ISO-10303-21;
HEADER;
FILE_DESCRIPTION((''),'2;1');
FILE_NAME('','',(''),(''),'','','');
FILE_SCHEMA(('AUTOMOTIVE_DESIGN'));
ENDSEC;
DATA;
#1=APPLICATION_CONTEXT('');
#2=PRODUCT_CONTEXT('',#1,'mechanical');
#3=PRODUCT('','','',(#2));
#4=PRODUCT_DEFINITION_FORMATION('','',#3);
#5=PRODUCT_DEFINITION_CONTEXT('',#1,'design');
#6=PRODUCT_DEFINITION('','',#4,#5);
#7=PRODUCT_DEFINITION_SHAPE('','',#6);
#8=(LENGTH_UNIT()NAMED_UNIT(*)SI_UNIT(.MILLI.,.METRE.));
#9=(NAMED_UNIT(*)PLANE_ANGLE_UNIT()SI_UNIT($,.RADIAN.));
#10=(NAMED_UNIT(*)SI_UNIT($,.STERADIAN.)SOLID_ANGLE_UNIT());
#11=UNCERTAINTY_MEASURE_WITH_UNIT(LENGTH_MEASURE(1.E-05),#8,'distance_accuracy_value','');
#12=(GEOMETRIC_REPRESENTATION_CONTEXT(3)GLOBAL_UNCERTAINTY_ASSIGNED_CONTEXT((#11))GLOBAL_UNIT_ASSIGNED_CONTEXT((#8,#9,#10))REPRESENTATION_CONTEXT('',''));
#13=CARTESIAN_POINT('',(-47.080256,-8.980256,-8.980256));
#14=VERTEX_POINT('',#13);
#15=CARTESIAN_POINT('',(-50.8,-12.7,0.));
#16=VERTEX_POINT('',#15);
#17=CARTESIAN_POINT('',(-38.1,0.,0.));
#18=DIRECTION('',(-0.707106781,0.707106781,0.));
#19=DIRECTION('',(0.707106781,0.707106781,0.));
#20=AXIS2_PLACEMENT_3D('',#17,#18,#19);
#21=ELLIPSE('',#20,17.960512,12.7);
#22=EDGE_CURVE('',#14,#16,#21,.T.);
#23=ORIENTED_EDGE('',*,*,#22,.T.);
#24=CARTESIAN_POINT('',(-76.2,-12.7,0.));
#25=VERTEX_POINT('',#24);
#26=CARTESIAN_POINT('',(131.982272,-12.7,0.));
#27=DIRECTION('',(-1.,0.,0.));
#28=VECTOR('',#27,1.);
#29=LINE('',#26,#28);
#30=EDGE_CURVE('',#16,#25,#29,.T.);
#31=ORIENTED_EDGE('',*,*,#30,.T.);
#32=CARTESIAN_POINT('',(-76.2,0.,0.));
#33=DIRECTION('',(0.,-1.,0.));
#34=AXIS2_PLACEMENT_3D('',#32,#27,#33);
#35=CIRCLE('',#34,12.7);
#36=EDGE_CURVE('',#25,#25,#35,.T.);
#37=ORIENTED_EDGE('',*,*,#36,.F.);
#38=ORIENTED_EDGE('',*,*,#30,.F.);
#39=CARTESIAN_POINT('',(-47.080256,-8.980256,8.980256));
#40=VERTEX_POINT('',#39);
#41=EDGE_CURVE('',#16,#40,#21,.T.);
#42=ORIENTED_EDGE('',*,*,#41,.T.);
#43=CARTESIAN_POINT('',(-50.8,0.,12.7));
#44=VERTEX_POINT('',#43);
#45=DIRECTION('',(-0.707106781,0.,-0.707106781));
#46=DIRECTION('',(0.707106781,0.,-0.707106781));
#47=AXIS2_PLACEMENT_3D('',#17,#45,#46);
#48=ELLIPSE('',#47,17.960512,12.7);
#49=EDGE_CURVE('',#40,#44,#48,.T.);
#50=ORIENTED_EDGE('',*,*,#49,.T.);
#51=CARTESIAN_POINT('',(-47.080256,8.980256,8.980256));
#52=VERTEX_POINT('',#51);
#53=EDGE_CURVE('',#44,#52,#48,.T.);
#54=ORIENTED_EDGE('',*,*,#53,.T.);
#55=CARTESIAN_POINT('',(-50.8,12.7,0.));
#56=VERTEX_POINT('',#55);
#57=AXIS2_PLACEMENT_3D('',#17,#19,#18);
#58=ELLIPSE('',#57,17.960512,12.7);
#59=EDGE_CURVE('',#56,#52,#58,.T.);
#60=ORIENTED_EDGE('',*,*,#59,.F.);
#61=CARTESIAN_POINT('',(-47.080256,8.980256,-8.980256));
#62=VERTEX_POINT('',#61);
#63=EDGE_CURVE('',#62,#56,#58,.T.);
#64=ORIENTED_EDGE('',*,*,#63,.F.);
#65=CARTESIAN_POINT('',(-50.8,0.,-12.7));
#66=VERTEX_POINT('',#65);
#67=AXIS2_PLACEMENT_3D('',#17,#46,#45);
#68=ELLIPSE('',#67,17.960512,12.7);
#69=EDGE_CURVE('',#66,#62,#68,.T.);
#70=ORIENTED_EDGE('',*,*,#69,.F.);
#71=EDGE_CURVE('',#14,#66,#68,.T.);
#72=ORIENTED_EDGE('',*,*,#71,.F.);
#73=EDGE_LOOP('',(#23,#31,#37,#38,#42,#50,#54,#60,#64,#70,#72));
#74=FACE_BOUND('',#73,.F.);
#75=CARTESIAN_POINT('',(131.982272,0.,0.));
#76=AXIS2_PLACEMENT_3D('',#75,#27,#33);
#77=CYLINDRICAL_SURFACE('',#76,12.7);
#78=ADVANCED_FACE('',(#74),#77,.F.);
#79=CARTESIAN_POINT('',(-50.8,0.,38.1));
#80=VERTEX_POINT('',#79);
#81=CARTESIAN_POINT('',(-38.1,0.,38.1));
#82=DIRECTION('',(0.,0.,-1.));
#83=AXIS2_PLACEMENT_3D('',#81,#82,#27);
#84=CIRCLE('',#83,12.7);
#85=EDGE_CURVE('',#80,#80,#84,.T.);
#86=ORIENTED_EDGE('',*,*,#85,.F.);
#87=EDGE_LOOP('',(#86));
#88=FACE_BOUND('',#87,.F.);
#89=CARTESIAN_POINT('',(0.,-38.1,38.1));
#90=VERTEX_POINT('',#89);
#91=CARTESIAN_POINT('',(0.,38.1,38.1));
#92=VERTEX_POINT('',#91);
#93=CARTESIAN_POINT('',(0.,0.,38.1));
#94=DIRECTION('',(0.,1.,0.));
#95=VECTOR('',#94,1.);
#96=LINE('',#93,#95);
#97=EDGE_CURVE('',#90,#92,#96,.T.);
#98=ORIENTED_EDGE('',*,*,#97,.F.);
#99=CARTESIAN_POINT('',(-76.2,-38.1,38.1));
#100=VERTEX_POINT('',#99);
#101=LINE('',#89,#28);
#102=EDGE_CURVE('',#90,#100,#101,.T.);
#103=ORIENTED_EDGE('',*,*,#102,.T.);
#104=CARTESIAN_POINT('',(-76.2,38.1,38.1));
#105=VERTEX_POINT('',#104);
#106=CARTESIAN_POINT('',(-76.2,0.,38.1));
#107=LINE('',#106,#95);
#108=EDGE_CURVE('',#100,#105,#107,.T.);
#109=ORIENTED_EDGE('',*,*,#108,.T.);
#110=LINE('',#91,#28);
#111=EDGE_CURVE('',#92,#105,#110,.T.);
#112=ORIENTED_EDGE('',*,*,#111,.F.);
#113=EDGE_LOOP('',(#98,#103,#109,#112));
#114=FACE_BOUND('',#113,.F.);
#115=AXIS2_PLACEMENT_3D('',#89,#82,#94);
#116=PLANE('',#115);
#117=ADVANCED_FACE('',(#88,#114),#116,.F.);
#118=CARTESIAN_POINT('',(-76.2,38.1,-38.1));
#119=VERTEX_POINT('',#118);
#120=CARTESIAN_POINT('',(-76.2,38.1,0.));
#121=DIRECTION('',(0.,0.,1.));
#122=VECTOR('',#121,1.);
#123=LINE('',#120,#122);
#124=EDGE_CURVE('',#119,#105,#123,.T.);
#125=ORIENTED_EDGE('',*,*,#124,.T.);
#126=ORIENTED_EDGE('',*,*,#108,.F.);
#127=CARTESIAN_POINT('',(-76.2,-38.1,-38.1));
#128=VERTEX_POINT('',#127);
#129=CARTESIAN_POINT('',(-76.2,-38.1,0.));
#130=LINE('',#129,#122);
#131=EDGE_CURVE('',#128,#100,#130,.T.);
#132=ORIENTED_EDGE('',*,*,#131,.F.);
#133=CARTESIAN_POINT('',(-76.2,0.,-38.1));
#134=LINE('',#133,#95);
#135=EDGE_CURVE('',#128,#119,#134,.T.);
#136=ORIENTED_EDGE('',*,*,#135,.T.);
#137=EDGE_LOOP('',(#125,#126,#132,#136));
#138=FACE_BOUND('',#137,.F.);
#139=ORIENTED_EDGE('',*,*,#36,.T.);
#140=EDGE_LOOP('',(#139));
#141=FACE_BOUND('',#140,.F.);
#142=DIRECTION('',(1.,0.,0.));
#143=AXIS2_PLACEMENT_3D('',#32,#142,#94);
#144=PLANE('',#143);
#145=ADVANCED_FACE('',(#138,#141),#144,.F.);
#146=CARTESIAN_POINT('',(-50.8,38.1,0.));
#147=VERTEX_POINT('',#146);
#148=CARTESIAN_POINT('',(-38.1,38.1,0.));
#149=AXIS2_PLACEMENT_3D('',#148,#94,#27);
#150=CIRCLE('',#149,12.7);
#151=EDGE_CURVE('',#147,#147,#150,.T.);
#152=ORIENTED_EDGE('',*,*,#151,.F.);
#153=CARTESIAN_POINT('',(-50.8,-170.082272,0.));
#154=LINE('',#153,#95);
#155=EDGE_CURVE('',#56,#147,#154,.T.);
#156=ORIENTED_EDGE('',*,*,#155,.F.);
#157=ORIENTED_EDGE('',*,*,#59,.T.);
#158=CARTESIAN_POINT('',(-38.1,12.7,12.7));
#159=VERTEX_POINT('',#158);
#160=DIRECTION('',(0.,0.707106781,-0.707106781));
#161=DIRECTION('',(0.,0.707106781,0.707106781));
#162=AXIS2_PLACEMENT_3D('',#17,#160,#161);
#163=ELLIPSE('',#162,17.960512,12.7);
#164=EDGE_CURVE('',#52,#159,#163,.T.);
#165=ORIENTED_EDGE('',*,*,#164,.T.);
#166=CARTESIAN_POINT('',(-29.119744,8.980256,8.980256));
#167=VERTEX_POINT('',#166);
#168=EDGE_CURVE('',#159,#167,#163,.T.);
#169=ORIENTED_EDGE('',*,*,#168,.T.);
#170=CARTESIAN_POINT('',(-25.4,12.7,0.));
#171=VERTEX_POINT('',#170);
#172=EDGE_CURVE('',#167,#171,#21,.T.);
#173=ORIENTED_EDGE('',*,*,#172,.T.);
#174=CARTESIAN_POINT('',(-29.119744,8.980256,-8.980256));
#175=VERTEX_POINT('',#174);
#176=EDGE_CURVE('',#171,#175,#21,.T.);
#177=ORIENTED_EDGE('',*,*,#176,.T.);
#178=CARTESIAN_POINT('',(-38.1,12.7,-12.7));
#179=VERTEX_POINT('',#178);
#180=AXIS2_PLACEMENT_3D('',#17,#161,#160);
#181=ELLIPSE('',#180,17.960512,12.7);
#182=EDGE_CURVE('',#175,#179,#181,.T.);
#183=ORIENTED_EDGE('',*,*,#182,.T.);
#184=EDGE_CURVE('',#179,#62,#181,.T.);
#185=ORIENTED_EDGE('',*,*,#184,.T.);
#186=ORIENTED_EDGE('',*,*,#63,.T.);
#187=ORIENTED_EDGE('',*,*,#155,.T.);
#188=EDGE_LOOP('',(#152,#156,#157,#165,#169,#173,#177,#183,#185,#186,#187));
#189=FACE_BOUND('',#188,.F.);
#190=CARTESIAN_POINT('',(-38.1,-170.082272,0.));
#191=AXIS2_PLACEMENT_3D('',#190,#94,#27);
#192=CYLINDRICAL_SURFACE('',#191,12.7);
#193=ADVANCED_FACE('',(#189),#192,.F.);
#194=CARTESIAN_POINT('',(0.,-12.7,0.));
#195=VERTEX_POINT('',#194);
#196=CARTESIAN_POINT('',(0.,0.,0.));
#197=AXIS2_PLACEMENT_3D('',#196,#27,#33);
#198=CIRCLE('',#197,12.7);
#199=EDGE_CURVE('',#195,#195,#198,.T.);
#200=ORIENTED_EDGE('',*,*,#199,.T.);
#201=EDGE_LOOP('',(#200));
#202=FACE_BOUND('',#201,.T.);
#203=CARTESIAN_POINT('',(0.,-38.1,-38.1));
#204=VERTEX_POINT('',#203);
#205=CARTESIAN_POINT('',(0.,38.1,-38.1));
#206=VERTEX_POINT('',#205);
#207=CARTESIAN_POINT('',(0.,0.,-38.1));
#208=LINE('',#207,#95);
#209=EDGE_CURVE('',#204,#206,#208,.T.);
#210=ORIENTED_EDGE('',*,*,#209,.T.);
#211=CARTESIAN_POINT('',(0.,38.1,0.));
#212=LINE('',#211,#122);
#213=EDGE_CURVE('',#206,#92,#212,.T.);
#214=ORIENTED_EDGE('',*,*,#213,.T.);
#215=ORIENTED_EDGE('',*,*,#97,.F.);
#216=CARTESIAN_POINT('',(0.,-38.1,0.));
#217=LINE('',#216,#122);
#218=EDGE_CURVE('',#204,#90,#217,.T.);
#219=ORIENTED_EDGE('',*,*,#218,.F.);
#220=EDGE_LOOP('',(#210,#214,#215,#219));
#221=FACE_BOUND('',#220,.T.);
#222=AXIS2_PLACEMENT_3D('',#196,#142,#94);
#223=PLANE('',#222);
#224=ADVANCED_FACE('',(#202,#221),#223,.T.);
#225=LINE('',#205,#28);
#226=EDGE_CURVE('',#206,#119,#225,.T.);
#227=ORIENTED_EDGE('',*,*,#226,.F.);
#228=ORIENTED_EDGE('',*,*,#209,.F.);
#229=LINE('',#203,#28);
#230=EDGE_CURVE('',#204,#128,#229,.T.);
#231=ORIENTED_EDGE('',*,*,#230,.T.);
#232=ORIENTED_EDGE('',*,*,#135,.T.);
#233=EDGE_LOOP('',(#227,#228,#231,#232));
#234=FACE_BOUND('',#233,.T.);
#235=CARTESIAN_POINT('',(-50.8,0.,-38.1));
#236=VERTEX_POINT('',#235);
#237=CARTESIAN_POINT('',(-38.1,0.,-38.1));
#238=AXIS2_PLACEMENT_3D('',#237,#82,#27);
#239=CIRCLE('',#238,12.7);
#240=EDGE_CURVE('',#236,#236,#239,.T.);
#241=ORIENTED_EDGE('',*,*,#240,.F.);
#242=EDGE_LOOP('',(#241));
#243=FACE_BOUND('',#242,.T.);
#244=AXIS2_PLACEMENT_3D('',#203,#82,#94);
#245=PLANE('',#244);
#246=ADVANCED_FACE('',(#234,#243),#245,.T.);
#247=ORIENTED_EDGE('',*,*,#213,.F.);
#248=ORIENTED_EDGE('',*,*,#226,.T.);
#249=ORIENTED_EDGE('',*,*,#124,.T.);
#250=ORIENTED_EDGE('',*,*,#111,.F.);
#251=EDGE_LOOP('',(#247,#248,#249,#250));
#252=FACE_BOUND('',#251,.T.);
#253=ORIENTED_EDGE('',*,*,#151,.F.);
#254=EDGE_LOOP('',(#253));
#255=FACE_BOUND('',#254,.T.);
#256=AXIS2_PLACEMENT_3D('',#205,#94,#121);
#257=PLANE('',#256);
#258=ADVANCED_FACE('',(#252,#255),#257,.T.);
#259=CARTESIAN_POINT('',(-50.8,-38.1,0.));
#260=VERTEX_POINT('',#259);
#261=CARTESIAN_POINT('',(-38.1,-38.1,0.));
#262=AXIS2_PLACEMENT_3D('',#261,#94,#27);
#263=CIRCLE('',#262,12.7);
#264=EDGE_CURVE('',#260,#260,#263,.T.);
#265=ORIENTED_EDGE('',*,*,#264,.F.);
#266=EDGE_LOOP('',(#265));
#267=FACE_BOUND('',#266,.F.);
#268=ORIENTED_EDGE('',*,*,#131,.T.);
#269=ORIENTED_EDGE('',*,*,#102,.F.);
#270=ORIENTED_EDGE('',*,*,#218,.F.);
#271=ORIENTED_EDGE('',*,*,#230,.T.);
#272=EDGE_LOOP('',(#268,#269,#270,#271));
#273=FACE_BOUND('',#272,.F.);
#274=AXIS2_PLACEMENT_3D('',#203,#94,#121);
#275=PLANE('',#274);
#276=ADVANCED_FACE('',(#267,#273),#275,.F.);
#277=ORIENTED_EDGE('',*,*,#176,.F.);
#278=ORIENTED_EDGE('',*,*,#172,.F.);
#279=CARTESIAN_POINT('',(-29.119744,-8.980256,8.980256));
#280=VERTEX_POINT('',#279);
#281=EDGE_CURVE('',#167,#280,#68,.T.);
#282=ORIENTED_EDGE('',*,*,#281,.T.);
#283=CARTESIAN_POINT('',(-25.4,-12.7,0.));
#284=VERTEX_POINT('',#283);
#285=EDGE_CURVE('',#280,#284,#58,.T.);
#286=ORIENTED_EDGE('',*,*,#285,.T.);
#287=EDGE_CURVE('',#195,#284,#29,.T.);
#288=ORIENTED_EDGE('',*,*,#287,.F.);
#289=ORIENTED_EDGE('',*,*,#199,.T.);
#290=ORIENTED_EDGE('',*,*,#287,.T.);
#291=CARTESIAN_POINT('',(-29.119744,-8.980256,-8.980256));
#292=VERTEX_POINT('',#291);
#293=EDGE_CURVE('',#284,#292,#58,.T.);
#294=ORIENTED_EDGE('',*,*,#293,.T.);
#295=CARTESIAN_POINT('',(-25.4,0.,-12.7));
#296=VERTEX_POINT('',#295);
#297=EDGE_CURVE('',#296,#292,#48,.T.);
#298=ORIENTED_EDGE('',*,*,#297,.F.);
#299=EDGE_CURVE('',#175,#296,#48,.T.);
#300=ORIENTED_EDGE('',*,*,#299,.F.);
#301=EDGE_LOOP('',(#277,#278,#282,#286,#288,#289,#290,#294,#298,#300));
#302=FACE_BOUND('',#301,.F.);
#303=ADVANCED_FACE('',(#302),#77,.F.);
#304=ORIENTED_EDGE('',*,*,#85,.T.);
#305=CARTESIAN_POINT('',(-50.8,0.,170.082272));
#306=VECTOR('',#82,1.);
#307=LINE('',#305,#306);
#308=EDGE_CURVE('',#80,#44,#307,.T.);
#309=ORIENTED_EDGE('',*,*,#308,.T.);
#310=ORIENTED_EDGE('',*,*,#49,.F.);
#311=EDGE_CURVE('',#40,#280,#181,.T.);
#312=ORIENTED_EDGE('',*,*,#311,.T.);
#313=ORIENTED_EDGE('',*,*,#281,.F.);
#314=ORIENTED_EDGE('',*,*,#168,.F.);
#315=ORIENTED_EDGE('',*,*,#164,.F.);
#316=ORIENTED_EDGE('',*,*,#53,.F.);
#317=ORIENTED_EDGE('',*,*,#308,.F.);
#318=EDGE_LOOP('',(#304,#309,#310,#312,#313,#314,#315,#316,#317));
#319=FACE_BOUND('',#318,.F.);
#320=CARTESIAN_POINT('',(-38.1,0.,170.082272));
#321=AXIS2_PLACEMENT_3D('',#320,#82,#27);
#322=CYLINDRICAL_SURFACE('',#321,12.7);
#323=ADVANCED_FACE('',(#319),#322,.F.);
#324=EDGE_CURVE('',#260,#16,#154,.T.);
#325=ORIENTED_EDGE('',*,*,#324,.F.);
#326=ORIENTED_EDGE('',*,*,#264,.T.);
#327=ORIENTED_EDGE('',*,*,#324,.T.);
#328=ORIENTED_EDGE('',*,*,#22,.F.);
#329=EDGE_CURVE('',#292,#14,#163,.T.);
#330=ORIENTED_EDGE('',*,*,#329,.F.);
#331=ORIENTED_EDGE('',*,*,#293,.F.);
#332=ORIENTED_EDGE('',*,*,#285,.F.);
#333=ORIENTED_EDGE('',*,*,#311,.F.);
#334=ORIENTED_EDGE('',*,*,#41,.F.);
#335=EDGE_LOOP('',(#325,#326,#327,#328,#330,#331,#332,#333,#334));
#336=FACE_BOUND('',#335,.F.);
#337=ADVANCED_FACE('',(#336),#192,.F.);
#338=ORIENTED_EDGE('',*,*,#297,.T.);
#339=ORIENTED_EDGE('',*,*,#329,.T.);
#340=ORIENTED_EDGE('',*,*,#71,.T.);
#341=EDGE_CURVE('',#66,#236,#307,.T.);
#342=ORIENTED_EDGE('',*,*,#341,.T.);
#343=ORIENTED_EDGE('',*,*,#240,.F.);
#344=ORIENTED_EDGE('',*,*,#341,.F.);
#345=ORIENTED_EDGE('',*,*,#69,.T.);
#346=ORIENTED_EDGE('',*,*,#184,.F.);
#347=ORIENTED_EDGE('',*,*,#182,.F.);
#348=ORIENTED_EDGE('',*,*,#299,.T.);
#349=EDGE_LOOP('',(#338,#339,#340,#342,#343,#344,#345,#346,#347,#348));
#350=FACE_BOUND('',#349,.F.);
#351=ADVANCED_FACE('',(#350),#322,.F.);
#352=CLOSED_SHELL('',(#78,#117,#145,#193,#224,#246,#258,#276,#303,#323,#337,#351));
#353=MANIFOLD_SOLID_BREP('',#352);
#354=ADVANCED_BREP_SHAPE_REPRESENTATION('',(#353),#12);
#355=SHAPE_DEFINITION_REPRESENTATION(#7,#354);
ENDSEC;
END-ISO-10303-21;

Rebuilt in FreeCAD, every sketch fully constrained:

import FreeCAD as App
import Part
import Sketcher
from FreeCAD import Vector
Q = App.Units.Quantity

doc = App.newDocument("Part")
body = doc.addObject("PartDesign::Body", "Body")

# Sketch on YZ plane
sketch1 = doc.addObject("Sketcher::SketchObject", "Sketch")
body.addObject(sketch1)
sketch1.AttachmentSupport = (doc.YZ_Plane, [""])
sketch1.MapMode = "FlatFace"
sketch1.addGeometry([
    Part.LineSegment(Vector(-38, 38, 0), Vector(-38, -38, 0)),
    Part.LineSegment(Vector(-38, -38, 0), Vector(38, -38, 0)),
    Part.LineSegment(Vector(38, -38, 0), Vector(38, 38, 0)),
    Part.LineSegment(Vector(38, 38, 0), Vector(-38, 38, 0)),
], False)
sketch1.addConstraint([
    Sketcher.Constraint("Coincident", 0, 2, 1, 1),
    Sketcher.Constraint("Coincident", 1, 2, 2, 1),
    Sketcher.Constraint("Coincident", 2, 2, 3, 1),
    Sketcher.Constraint("Coincident", 3, 2, 0, 1),
    Sketcher.Constraint("Vertical", 0),
    Sketcher.Constraint("Horizontal", 1),
    Sketcher.Constraint("Vertical", 2),
    Sketcher.Constraint("Horizontal", 3),
    Sketcher.Constraint("Symmetric", 0, 2, 2, 2, -1, 1),
    Sketcher.Constraint("Equal", 3, 0),
    Sketcher.Constraint("DistanceX", 1, 1, 1, 2, Q("3 in")),
])
pad1 = doc.addObject("PartDesign::Pad", "Pad")
body.addObject(pad1)
pad1.Profile = sketch1
pad1.Length = Q("3 in")
pad1.Reversed = True

# Sketch on XZ plane
sketch2 = doc.addObject("Sketcher::SketchObject", "Sketch001")
body.addObject(sketch2)
sketch2.AttachmentSupport = (doc.XZ_Plane, [""])
sketch2.MapMode = "FlatFace"
sketch2.AttachmentOffset = App.Placement(Vector(0, 0, 1.5 * 25.4), App.Rotation())
sketch2.addGeometry(Part.Circle(Vector(-38, 0, 0), Vector(0, 0, 1), 13), False)
sketch2.addConstraint([
    Sketcher.Constraint("PointOnObject", 0, 3, -1),
    Sketcher.Constraint("Diameter", 0, Q("1 in")),
    Sketcher.Constraint("DistanceX", 0, 3, -1, 1, Q("1.5 in")),
])
doc.recompute()
hole = doc.addObject("PartDesign::Hole", "Hole")
body.addObject(hole)
hole.Profile = sketch2
hole.ThreadType = "None"
hole.Diameter = Q("1 in")
hole.DepthType = "ThroughAll"

# Sketch on XY plane
sketch3 = doc.addObject("Sketcher::SketchObject", "Sketch002")
body.addObject(sketch3)
sketch3.AttachmentSupport = (doc.XY_Plane, [""])
sketch3.MapMode = "FlatFace"
sketch3.AttachmentOffset = App.Placement(Vector(0, 0, 1.5 * 25.4), App.Rotation())
sketch3.addGeometry(Part.Circle(Vector(-38, 0, 0), Vector(0, 0, 1), 13), False)
sketch3.addConstraint([
    Sketcher.Constraint("PointOnObject", 0, 3, -1),
    Sketcher.Constraint("Diameter", 0, Q("1 in")),
    Sketcher.Constraint("DistanceX", 0, 3, -1, 1, Q("1.5 in")),
])
doc.recompute()
hole2 = doc.addObject("PartDesign::Hole", "Hole001")
body.addObject(hole2)
hole2.Profile = sketch3
hole2.ThreadType = "None"
hole2.Diameter = Q("1 in")
hole2.DepthType = "ThroughAll"

# Sketch on YZ plane
sketch4 = doc.addObject("Sketcher::SketchObject", "Sketch003")
body.addObject(sketch4)
sketch4.AttachmentSupport = (doc.YZ_Plane, [""])
sketch4.MapMode = "FlatFace"
sketch4.addGeometry(Part.Circle(Vector(0, 0, 0), Vector(0, 0, 1), 13), False)
sketch4.addConstraint([
    Sketcher.Constraint("Coincident", 0, 3, -1, 1),
    Sketcher.Constraint("Diameter", 0, Q("1 in")),
])
doc.recompute()
hole3 = doc.addObject("PartDesign::Hole", "Hole002")
body.addObject(hole3)
hole3.Profile = sketch4
hole3.ThreadType = "None"
hole3.Diameter = Q("1 in")
hole3.DepthType = "ThroughAll"

doc.recompute()
